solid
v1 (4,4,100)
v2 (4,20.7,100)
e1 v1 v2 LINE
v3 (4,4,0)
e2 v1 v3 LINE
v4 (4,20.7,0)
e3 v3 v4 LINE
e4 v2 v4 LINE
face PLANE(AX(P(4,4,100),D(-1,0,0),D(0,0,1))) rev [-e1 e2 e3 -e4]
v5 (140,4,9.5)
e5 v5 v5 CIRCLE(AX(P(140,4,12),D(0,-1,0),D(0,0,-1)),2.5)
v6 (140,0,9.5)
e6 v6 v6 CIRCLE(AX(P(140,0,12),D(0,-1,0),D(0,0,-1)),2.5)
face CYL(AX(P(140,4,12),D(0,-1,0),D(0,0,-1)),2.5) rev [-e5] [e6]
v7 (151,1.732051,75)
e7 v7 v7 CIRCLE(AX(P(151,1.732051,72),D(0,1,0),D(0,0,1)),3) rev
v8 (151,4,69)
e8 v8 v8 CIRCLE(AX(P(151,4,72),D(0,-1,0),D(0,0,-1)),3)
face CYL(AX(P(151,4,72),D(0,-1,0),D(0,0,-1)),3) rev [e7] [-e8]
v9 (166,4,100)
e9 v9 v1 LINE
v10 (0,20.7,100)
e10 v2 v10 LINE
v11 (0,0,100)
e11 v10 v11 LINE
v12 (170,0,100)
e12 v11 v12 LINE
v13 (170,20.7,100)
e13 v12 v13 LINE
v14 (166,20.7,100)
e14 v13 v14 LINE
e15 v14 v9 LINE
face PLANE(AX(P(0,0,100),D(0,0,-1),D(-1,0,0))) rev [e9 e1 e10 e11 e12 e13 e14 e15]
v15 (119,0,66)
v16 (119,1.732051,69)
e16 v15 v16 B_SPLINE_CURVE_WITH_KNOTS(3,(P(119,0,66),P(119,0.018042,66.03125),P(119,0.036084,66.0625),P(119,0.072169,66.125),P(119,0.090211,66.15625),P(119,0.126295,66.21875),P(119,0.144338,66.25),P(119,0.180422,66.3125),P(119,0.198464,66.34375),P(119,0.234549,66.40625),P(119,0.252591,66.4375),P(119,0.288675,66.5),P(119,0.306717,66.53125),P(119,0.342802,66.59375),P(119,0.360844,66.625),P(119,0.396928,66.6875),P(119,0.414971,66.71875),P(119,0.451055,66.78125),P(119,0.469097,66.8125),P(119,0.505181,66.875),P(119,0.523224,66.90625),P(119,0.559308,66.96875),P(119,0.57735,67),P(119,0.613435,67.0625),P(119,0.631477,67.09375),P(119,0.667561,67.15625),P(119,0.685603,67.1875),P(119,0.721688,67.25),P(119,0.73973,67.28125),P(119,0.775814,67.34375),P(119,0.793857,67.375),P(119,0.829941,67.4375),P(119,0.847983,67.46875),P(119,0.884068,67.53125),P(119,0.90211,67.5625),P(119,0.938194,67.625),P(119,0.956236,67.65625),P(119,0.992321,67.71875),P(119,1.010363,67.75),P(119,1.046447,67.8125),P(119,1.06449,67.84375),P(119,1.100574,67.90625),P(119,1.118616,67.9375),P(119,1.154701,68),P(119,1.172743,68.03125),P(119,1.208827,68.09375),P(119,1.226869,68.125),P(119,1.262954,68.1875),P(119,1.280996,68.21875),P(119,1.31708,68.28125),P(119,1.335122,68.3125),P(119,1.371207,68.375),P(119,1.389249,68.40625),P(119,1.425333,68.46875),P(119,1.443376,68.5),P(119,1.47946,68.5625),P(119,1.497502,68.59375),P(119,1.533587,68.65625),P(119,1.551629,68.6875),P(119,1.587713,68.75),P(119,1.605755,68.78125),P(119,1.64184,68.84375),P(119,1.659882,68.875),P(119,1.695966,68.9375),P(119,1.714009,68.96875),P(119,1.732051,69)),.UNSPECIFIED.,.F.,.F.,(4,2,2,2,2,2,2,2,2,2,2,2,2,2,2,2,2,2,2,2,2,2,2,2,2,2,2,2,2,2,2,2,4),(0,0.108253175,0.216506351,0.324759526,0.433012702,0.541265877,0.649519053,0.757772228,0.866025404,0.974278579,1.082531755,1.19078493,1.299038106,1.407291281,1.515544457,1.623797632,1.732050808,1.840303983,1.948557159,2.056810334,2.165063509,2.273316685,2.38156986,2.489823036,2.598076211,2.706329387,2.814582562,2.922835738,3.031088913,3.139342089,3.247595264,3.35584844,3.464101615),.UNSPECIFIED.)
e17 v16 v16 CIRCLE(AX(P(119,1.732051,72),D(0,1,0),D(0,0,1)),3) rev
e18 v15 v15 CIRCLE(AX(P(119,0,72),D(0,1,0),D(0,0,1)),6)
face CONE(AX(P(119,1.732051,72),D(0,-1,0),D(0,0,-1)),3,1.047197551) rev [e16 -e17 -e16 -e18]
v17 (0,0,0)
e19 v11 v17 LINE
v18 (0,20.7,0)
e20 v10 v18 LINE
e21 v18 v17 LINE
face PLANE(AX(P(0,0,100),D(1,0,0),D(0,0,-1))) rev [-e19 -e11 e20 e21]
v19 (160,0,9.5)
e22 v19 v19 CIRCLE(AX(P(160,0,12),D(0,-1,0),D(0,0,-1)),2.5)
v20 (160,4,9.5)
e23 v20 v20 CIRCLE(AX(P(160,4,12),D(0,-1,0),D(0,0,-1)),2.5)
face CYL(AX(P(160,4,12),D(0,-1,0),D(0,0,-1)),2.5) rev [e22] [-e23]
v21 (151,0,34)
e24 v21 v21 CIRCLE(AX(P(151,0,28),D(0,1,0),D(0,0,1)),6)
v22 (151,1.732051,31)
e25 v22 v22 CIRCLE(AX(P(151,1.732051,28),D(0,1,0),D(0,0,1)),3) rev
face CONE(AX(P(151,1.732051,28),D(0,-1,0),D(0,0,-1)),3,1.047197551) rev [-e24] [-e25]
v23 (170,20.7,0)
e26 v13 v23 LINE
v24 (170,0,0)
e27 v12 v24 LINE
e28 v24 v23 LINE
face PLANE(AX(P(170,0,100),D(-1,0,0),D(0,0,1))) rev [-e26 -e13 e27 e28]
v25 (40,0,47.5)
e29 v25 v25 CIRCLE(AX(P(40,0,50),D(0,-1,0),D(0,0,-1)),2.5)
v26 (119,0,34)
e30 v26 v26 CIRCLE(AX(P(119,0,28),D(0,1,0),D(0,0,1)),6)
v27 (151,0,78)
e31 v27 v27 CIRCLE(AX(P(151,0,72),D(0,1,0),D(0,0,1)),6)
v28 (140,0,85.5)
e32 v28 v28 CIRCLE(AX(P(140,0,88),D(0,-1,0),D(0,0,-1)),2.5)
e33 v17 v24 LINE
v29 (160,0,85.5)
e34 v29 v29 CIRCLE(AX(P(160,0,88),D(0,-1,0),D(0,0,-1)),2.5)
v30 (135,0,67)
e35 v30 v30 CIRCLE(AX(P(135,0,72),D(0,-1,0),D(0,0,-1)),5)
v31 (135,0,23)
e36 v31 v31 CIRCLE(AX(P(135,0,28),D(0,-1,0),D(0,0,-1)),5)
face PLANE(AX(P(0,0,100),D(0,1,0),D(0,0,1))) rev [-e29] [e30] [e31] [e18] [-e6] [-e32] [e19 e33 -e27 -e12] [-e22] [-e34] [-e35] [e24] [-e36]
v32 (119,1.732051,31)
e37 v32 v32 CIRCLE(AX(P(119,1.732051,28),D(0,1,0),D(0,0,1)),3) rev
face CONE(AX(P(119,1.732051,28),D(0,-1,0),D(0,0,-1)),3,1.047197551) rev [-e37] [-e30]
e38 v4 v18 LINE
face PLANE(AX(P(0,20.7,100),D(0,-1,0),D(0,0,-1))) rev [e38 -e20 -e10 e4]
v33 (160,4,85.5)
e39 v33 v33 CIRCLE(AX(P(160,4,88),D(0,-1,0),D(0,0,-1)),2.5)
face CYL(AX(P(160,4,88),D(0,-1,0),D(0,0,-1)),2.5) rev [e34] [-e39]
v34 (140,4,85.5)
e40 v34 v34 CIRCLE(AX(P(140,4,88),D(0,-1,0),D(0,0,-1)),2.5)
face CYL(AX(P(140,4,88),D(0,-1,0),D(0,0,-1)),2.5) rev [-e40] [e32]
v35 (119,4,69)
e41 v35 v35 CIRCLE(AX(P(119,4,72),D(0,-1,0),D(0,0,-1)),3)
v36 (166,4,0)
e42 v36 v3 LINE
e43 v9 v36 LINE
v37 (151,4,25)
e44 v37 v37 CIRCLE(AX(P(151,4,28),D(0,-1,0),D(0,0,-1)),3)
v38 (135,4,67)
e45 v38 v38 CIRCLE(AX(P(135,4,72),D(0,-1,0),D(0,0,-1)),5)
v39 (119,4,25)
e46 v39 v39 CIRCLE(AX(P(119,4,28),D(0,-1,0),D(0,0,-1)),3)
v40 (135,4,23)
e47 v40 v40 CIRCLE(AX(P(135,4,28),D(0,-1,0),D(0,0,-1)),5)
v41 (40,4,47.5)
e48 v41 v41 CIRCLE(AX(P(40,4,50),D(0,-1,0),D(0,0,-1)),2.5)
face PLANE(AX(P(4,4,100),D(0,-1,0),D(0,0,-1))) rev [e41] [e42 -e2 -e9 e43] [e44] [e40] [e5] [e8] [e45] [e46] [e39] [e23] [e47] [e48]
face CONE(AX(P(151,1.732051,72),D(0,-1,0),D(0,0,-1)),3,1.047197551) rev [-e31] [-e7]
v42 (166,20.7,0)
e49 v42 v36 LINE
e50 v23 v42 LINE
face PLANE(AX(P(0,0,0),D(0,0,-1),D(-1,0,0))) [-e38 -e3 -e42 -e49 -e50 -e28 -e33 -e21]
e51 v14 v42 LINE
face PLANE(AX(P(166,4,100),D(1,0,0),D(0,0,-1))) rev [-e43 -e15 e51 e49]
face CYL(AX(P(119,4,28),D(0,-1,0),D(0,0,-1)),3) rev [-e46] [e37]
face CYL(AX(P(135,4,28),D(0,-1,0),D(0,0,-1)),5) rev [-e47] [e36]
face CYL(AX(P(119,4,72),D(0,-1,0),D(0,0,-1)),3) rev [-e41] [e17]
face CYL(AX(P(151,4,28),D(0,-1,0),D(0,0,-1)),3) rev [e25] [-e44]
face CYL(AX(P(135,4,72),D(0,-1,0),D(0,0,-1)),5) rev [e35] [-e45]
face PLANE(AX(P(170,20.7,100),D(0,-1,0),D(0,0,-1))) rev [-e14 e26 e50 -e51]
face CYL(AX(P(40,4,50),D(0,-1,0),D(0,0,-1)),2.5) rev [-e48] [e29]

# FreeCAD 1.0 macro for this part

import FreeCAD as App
import Part
import Sketcher
from FreeCAD import Vector


def edges_at(feature, points):
    """Names of the edges that pass closest to the given points."""
    edges = feature.Shape.Edges
    near = lambda p: min(range(len(edges)), key=lambda i: edges[i].distToShape(Part.Vertex(*p))[0])
    return sorted({f"Edge{near(p) + 1}" for p in points})


def add_polygon(sketch, points):
    """Adds a closed chain of lines whose ends are joined by coincident constraints."""
    first, n = sketch.GeometryCount, len(points)
    for a, b in zip(points, points[1:] + points[:1]):
        sketch.addGeometry(Part.LineSegment(App.Vector(*a, 0), App.Vector(*b, 0)), False)
    for i in range(n):
        sketch.addConstraint(Sketcher.Constraint("Coincident", first + i, 2, first + (i + 1) % n, 1))

doc = App.newDocument("Part")
params = doc.addObject("Spreadsheet::Sheet", "Params")
for row, (alias, value) in enumerate([
    ("sketch1_width", "170 mm"),
    ("sketch1_width2", "4 mm"),
    ("sketch1_height", "20.7 mm"),
    ("sketch1_height2", "16.7 mm"),
    ("pad1_length", "100 mm"),
    ("sketch2_diameter", "10 mm"),
    ("sketch2_diameter2", "5 mm"),
    ("sketch2_diameter3", "6 mm"),
    ("pocket1_length", "4 mm"),
    ("chamfer_size", "3 mm"),
    ("chamfer_size2", "1.732051 mm"),
    ("chamfer2_size", "3 mm"),
    ("chamfer2_size2", "1.732051 mm"),
    ("chamfer3_size", "3 mm"),
    ("chamfer3_size2", "1.732051 mm"),
    ("chamfer4_size", "3 mm"),
    ("chamfer4_size2", "1.732051 mm"),
], start=1):
    params.set(f"A{row}", alias)
    params.set(f"B{row}", "=" + value)
    params.setAlias(f"B{row}", alias)

body = doc.addObject("PartDesign::Body", "Body")

# Sketch on XY plane
sketch1 = body.newObject("Sketcher::SketchObject", "Sketch")
sketch1.AttachmentSupport = (doc.getObject("XY_Plane"), [""])
sketch1.MapMode = "FlatFace"
add_polygon(sketch1, [(0, 0), (170, 0), (170, 20.7), (166, 20.7), (166, 4), (4, 4), (4, 20.7), (0, 20.7)])  # lines 0-7
sketch1.addConstraint([
    Sketcher.Constraint("Horizontal", 0),
    Sketcher.Constraint("Vertical", 1),
    Sketcher.Constraint("Horizontal", 2),
    Sketcher.Constraint("Vertical", 3),
    Sketcher.Constraint("Horizontal", 4),
    Sketcher.Constraint("Vertical", 5),
    Sketcher.Constraint("Horizontal", 6),
    Sketcher.Constraint("Vertical", 7),
    Sketcher.Constraint("Coincident", 7, 2, -1, 1),
    Sketcher.Constraint("Horizontal", 2, 2, 5, 2),
    Sketcher.Constraint("Equal", 2, 6),
    Sketcher.Constraint("DistanceX", 0, 1, 0, 2, 170.0),
    Sketcher.Constraint("DistanceX", 2, 2, 2, 1, 4.0),
    Sketcher.Constraint("DistanceY", 1, 1, 1, 2, 20.7),
    Sketcher.Constraint("DistanceY", 3, 2, 3, 1, 16.7),
])
sketch1.setExpression("Constraints[19]", "Params.sketch1_width")
sketch1.setExpression("Constraints[20]", "Params.sketch1_width2")
sketch1.setExpression("Constraints[21]", "Params.sketch1_height")
sketch1.setExpression("Constraints[22]", "Params.sketch1_height2")
pad1 = body.newObject("PartDesign::Pad", "Pad")
pad1.Profile = sketch1
pad1.setExpression("Length", "Params.pad1_length")

# Sketch on XZ plane
sketch2 = body.newObject("Sketcher::SketchObject", "Sketch001")
sketch2.AttachmentSupport = (doc.getObject("XZ_Plane"), [""])
sketch2.MapMode = "FlatFace"
sketch2.addGeometry([
    Part.Circle(Vector(135, 72, 0), Vector(0, 0, 1), 5),  # 0
    Part.Circle(Vector(135, 28, 0), Vector(0, 0, 1), 5),  # 1
    Part.Circle(Vector(40, 50, 0), Vector(0, 0, 1), 2.5),  # 2
    Part.Circle(Vector(160, 88, 0), Vector(0, 0, 1), 2.5),  # 3
    Part.Circle(Vector(140, 88, 0), Vector(0, 0, 1), 2.5),  # 4
    Part.Circle(Vector(160, 12, 0), Vector(0, 0, 1), 2.5),  # 5
    Part.Circle(Vector(140, 12, 0), Vector(0, 0, 1), 2.5),  # 6
    Part.Circle(Vector(151, 28, 0), Vector(0, 0, 1), 3),  # 7
    Part.Circle(Vector(119, 28, 0), Vector(0, 0, 1), 3),  # 8
    Part.Circle(Vector(151, 72, 0), Vector(0, 0, 1), 3),  # 9
    Part.Circle(Vector(119, 72, 0), Vector(0, 0, 1), 3),  # 10
], False)
sketch2.addConstraint([
    Sketcher.Constraint("Equal", 0, 1),
    Sketcher.Constraint("Equal", 2, 3),
    Sketcher.Constraint("Equal", 3, 4),
    Sketcher.Constraint("Equal", 4, 5),
    Sketcher.Constraint("Equal", 5, 6),
    Sketcher.Constraint("Equal", 7, 8),
    Sketcher.Constraint("Equal", 8, 9),
    Sketcher.Constraint("Equal", 9, 10),
    Sketcher.Constraint("Horizontal", 3, 3, 4, 3),
    Sketcher.Constraint("Horizontal", 5, 3, 6, 3),
    Sketcher.Constraint("Horizontal", 1, 3, 7, 3),
    Sketcher.Constraint("Horizontal", 7, 3, 8, 3),
    Sketcher.Constraint("Horizontal", 0, 3, 9, 3),
    Sketcher.Constraint("Horizontal", 9, 3, 10, 3),
    Sketcher.Constraint("Vertical", 0, 3, 1, 3),
    Sketcher.Constraint("Vertical", 3, 3, 5, 3),
    Sketcher.Constraint("Vertical", 4, 3, 6, 3),
    Sketcher.Constraint("Vertical", 7, 3, 9, 3),
    Sketcher.Constraint("Vertical", 8, 3, 10, 3),
    Sketcher.Constraint("Diameter", 0, 10.0),
    Sketcher.Constraint("Diameter", 2, 5.0),
    Sketcher.Constraint("Diameter", 7, 6.0),
    Sketcher.Constraint("DistanceX", -1, 1, 0, 3, 135.0),
    Sketcher.Constraint("DistanceY", -1, 1, 0, 3, 72.0),
    Sketcher.Constraint("DistanceY", -1, 1, 1, 3, 28.0),
    Sketcher.Constraint("DistanceX", -1, 1, 2, 3, 40.0),
    Sketcher.Constraint("DistanceY", -1, 1, 2, 3, 50.0),
    Sketcher.Constraint("DistanceX", -1, 1, 3, 3, 160.0),
    Sketcher.Constraint("DistanceY", -1, 1, 3, 3, 88.0),
    Sketcher.Constraint("DistanceX", -1, 1, 4, 3, 140.0),
    Sketcher.Constraint("DistanceY", -1, 1, 5, 3, 12.0),
    Sketcher.Constraint("DistanceX", -1, 1, 7, 3, 151.0),
    Sketcher.Constraint("DistanceX", -1, 1, 8, 3, 119.0),
])
sketch2.setExpression("Constraints[19]", "Params.sketch2_diameter")
sketch2.setExpression("Constraints[20]", "Params.sketch2_diameter2")
sketch2.setExpression("Constraints[21]", "Params.sketch2_diameter3")
pocket1 = body.newObject("PartDesign::Pocket", "Pocket")
pocket1.Profile = sketch2
pocket1.setExpression("Length", "Params.pocket1_length")
doc.recompute()

chamfer = body.newObject("PartDesign::Chamfer", "Chamfer")
chamfer.Base = (pocket1, edges_at(pocket1, [(151, 0, 75)]))
chamfer.ChamferType = "Two distances"
chamfer.setExpression("Size", "Params.chamfer_size")
chamfer.setExpression("Size2", "Params.chamfer_size2")
doc.recompute()

chamfer2 = body.newObject("PartDesign::Chamfer", "Chamfer001")
chamfer2.Base = (chamfer, edges_at(chamfer, [(119, 0, 75)]))
chamfer2.ChamferType = "Two distances"
chamfer2.setExpression("Size", "Params.chamfer2_size")
chamfer2.setExpression("Size2", "Params.chamfer2_size2")
doc.recompute()

chamfer3 = body.newObject("PartDesign::Chamfer", "Chamfer002")
chamfer3.Base = (chamfer2, edges_at(chamfer2, [(119, 0, 31)]))
chamfer3.ChamferType = "Two distances"
chamfer3.setExpression("Size", "Params.chamfer3_size")
chamfer3.setExpression("Size2", "Params.chamfer3_size2")
doc.recompute()

chamfer4 = body.newObject("PartDesign::Chamfer", "Chamfer003")
chamfer4.Base = (chamfer3, edges_at(chamfer3, [(151, 0, 31)]))
chamfer4.ChamferType = "Two distances"
chamfer4.setExpression("Size", "Params.chamfer4_size")
chamfer4.setExpression("Size2", "Params.chamfer4_size2")

doc.recompute()
